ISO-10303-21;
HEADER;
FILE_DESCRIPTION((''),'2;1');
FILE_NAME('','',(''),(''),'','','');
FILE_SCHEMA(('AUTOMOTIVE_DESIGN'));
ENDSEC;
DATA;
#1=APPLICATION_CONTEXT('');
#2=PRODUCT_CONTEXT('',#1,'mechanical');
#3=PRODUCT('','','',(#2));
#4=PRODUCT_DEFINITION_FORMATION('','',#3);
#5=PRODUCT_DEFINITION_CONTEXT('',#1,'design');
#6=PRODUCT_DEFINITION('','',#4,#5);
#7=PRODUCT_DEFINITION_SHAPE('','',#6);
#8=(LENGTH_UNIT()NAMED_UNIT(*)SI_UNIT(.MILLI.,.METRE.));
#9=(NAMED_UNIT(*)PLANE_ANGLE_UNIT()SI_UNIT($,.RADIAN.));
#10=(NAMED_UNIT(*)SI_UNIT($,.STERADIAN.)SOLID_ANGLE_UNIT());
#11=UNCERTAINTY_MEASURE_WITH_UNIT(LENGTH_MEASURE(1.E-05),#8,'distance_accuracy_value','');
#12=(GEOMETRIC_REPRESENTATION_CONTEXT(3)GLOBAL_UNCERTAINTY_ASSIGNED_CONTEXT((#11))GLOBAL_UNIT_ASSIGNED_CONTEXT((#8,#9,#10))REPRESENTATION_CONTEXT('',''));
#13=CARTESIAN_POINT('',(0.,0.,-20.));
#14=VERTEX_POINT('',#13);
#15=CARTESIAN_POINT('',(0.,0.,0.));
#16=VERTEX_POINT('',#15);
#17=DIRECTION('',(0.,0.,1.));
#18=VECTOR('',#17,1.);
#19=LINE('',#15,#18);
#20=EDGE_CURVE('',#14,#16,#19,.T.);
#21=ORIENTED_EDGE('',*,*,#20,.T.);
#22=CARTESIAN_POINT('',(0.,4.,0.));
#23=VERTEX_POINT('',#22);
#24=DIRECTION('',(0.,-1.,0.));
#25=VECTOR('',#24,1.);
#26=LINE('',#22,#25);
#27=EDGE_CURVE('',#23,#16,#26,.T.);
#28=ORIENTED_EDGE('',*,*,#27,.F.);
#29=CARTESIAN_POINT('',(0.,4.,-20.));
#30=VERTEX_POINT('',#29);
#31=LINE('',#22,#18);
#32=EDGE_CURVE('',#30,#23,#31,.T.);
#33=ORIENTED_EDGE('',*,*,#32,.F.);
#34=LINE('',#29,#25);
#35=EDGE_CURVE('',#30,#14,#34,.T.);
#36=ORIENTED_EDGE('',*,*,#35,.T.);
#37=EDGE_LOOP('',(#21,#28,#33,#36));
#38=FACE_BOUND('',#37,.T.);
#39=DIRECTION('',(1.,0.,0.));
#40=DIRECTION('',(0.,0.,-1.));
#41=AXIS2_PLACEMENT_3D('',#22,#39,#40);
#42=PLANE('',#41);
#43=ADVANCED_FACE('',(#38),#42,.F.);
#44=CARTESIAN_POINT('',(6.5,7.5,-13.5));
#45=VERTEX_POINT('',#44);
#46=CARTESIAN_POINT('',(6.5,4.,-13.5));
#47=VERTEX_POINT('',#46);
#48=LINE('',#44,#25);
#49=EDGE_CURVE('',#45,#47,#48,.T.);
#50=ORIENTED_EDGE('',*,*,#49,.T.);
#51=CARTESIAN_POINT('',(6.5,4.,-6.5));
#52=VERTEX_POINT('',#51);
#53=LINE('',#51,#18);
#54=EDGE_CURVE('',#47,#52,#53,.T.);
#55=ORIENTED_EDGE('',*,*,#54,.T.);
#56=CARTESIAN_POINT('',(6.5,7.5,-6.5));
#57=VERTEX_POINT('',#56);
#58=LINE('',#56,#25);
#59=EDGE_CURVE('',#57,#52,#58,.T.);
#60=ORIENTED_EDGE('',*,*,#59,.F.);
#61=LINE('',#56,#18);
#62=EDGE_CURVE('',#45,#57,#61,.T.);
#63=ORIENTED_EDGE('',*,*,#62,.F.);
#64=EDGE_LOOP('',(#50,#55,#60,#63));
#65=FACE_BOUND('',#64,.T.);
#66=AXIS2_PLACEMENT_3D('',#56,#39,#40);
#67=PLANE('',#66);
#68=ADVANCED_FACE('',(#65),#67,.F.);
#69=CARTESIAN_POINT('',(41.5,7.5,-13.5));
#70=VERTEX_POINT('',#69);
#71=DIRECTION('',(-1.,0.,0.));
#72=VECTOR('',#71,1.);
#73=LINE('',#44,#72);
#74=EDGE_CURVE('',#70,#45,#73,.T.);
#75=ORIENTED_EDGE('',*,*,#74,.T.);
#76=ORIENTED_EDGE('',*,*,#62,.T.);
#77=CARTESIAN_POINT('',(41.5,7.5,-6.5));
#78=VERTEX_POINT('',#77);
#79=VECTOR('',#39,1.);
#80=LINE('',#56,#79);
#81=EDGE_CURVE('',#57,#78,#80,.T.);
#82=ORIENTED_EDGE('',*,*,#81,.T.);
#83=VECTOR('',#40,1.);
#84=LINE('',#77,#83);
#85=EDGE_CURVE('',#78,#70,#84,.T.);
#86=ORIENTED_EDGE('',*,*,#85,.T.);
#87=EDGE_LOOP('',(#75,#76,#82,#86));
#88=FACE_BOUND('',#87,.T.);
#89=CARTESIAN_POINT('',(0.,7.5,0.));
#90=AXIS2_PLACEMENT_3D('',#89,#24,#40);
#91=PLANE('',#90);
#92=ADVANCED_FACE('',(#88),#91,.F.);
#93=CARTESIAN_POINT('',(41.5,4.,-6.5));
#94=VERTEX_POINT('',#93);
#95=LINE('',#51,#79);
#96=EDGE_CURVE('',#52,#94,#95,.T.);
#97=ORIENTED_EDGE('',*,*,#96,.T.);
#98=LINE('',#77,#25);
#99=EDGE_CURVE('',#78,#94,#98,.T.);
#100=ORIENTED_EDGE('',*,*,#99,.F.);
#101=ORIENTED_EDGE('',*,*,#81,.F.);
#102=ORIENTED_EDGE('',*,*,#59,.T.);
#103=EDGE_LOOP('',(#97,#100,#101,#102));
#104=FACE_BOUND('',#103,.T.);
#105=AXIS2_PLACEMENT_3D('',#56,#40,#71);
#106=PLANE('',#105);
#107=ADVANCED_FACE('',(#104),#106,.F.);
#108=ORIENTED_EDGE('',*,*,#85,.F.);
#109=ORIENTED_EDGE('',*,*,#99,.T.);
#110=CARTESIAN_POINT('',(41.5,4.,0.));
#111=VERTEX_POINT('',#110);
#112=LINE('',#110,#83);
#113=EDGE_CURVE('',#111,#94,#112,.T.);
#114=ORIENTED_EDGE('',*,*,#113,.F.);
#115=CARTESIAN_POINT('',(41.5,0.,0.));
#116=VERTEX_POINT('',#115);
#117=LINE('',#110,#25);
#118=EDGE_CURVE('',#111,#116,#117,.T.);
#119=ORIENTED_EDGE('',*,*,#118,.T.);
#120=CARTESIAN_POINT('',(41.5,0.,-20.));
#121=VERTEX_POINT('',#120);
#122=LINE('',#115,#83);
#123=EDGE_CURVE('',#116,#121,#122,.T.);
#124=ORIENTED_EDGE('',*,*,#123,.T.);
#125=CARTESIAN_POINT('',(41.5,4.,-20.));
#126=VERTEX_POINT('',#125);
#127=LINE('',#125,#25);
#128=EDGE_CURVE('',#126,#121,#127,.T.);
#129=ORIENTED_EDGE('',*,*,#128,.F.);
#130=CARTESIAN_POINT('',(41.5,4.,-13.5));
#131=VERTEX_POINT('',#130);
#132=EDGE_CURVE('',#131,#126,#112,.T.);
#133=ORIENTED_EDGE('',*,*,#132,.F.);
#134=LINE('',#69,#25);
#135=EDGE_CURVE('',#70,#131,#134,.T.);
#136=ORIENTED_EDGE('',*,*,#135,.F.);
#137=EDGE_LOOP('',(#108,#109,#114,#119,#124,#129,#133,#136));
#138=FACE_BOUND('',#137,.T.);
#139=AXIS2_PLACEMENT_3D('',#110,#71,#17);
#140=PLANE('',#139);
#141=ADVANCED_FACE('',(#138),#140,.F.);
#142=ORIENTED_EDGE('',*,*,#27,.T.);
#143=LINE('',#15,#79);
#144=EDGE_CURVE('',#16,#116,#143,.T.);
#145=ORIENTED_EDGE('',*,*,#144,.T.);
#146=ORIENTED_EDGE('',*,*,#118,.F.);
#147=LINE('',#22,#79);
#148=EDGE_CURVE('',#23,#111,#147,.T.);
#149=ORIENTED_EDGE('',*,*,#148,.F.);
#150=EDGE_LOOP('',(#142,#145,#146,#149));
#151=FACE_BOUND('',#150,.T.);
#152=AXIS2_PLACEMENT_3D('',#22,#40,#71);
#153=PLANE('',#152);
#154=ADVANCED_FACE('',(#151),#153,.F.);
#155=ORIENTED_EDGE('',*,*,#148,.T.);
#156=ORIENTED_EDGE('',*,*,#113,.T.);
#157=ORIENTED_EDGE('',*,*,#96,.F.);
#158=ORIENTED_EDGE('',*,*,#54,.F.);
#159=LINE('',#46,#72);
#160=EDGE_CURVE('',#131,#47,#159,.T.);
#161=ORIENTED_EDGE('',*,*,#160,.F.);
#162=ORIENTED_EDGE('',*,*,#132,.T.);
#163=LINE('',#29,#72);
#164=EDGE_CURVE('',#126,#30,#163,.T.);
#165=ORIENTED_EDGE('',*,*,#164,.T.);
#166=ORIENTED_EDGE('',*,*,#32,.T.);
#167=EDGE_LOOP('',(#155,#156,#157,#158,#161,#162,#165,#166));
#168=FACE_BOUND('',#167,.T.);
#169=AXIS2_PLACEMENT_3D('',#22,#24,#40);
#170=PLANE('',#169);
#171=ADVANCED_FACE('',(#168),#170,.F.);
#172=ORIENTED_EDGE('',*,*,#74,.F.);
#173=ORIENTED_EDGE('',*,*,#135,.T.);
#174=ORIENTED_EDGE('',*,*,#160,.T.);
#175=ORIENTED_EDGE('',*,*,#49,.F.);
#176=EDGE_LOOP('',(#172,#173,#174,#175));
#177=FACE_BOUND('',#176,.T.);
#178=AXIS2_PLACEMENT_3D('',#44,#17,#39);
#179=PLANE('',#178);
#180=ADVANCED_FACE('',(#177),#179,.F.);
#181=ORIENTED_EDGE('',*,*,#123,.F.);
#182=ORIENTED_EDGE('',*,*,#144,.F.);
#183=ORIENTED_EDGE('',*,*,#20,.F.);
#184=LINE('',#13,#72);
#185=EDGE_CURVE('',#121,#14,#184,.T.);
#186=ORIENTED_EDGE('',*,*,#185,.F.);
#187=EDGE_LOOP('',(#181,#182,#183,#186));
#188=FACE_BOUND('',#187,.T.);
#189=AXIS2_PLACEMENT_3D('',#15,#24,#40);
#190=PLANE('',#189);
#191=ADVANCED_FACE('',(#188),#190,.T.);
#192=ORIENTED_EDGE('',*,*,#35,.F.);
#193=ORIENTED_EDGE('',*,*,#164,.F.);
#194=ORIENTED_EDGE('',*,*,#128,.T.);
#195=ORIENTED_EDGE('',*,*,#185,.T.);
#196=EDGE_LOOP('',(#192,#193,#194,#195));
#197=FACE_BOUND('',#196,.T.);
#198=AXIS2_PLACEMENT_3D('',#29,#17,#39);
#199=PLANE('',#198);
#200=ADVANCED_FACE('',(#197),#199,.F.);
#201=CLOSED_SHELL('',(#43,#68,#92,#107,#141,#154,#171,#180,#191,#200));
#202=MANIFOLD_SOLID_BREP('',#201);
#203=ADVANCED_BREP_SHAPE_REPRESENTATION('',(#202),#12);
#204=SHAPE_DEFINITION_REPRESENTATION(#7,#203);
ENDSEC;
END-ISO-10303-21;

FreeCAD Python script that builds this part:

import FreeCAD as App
import Part
import Sketcher

V = App.Vector
Q = App.Units.Quantity


def add_polygon(sketch, points):
    """Adds a closed chain of lines whose ends are joined by coincident constraints."""
    first, n = sketch.GeometryCount, len(points)
    for a, b in zip(points, points[1:] + points[:1]):
        sketch.addGeometry(Part.LineSegment(App.Vector(*a, 0), App.Vector(*b, 0)), False)
    for i in range(n):
        sketch.addConstraint(Sketcher.Constraint("Coincident", first + i, 2, first + (i + 1) % n, 1))

doc = App.newDocument("Part")
params = doc.addObject("Spreadsheet::Sheet", "Params")
for row, (alias, value) in enumerate([
    ("sketch1_height", "20 mm"),
    ("sketch1_width", "41.5 mm"),
    ("pad1_length", "4 mm"),
    ("sketch2_width", "35 mm"),
    ("sketch2_height", "7 mm"),
    ("pad2_length", "3.5 mm"),
], start=1):
    params.set(f"A{row}", alias)
    params.set(f"B{row}", "=" + value)
    params.setAlias(f"B{row}", alias)

body = doc.addObject("PartDesign::Body", "Body")

sketch1 = body.newObject("Sketcher::SketchObject", "Sketch")
sketch1.AttachmentSupport = (doc.getObject("XZ_Plane"), [""])
sketch1.MapMode = "FlatFace"
add_polygon(sketch1, [(0, -20), (0, 0), (41.5, 0), (41.5, -20)])
sketch1.addConstraint([
    Sketcher.Constraint("Vertical", 0),
    Sketcher.Constraint("Horizontal", 1),
    Sketcher.Constraint("Vertical", 2),
    Sketcher.Constraint("Horizontal", 3),
    Sketcher.Constraint("Coincident", 0, 2, -1, 1),
    Sketcher.Constraint("DistanceY", 0, 1, 0, 2, Q("20 mm")),
    Sketcher.Constraint("DistanceX", 1, 1, 1, 2, Q("41.5 mm")),
])
sketch1.setExpression("Constraints[9]", "Params.sketch1_height")
sketch1.setExpression("Constraints[10]", "Params.sketch1_width")
pad1 = body.newObject("PartDesign::Pad", "Pad")
pad1.Profile = sketch1
pad1.setExpression("Length", "Params.pad1_length")
pad1.Reversed = True

sketch2 = body.newObject("Sketcher::SketchObject", "Sketch001")
sketch2.AttachmentSupport = (doc.getObject("XZ_Plane"), [""])
sketch2.MapMode = "FlatFace"
sketch2.AttachmentOffset = App.Placement(V(0, 0, -4), App.Rotation())
add_polygon(sketch2, [(6.5, -13.5), (6.5, -6.5), (41.5, -6.5), (41.5, -13.5)])
sketch2.addConstraint([
    Sketcher.Constraint("Vertical", 0),
    Sketcher.Constraint("Horizontal", 1),
    Sketcher.Constraint("Vertical", 2),
    Sketcher.Constraint("Horizontal", 3),
    Sketcher.Constraint("DistanceX", 1, 1, 1, 2, Q("35 mm")),
    Sketcher.Constraint("DistanceY", 0, 1, 0, 2, Q("7 mm")),
    Sketcher.Constraint("DistanceX", -1, 1, 0, 2, Q("6.5 mm")),
    Sketcher.Constraint("DistanceY", 0, 2, -1, 1, Q("6.5 mm")),
])
sketch2.setExpression("Constraints[8]", "Params.sketch2_width")
sketch2.setExpression("Constraints[9]", "Params.sketch2_height")
pad2 = body.newObject("PartDesign::Pad", "Pad001")
pad2.Profile = sketch2
pad2.setExpression("Length", "Params.pad2_length")
pad2.Reversed = True

doc.recompute()
